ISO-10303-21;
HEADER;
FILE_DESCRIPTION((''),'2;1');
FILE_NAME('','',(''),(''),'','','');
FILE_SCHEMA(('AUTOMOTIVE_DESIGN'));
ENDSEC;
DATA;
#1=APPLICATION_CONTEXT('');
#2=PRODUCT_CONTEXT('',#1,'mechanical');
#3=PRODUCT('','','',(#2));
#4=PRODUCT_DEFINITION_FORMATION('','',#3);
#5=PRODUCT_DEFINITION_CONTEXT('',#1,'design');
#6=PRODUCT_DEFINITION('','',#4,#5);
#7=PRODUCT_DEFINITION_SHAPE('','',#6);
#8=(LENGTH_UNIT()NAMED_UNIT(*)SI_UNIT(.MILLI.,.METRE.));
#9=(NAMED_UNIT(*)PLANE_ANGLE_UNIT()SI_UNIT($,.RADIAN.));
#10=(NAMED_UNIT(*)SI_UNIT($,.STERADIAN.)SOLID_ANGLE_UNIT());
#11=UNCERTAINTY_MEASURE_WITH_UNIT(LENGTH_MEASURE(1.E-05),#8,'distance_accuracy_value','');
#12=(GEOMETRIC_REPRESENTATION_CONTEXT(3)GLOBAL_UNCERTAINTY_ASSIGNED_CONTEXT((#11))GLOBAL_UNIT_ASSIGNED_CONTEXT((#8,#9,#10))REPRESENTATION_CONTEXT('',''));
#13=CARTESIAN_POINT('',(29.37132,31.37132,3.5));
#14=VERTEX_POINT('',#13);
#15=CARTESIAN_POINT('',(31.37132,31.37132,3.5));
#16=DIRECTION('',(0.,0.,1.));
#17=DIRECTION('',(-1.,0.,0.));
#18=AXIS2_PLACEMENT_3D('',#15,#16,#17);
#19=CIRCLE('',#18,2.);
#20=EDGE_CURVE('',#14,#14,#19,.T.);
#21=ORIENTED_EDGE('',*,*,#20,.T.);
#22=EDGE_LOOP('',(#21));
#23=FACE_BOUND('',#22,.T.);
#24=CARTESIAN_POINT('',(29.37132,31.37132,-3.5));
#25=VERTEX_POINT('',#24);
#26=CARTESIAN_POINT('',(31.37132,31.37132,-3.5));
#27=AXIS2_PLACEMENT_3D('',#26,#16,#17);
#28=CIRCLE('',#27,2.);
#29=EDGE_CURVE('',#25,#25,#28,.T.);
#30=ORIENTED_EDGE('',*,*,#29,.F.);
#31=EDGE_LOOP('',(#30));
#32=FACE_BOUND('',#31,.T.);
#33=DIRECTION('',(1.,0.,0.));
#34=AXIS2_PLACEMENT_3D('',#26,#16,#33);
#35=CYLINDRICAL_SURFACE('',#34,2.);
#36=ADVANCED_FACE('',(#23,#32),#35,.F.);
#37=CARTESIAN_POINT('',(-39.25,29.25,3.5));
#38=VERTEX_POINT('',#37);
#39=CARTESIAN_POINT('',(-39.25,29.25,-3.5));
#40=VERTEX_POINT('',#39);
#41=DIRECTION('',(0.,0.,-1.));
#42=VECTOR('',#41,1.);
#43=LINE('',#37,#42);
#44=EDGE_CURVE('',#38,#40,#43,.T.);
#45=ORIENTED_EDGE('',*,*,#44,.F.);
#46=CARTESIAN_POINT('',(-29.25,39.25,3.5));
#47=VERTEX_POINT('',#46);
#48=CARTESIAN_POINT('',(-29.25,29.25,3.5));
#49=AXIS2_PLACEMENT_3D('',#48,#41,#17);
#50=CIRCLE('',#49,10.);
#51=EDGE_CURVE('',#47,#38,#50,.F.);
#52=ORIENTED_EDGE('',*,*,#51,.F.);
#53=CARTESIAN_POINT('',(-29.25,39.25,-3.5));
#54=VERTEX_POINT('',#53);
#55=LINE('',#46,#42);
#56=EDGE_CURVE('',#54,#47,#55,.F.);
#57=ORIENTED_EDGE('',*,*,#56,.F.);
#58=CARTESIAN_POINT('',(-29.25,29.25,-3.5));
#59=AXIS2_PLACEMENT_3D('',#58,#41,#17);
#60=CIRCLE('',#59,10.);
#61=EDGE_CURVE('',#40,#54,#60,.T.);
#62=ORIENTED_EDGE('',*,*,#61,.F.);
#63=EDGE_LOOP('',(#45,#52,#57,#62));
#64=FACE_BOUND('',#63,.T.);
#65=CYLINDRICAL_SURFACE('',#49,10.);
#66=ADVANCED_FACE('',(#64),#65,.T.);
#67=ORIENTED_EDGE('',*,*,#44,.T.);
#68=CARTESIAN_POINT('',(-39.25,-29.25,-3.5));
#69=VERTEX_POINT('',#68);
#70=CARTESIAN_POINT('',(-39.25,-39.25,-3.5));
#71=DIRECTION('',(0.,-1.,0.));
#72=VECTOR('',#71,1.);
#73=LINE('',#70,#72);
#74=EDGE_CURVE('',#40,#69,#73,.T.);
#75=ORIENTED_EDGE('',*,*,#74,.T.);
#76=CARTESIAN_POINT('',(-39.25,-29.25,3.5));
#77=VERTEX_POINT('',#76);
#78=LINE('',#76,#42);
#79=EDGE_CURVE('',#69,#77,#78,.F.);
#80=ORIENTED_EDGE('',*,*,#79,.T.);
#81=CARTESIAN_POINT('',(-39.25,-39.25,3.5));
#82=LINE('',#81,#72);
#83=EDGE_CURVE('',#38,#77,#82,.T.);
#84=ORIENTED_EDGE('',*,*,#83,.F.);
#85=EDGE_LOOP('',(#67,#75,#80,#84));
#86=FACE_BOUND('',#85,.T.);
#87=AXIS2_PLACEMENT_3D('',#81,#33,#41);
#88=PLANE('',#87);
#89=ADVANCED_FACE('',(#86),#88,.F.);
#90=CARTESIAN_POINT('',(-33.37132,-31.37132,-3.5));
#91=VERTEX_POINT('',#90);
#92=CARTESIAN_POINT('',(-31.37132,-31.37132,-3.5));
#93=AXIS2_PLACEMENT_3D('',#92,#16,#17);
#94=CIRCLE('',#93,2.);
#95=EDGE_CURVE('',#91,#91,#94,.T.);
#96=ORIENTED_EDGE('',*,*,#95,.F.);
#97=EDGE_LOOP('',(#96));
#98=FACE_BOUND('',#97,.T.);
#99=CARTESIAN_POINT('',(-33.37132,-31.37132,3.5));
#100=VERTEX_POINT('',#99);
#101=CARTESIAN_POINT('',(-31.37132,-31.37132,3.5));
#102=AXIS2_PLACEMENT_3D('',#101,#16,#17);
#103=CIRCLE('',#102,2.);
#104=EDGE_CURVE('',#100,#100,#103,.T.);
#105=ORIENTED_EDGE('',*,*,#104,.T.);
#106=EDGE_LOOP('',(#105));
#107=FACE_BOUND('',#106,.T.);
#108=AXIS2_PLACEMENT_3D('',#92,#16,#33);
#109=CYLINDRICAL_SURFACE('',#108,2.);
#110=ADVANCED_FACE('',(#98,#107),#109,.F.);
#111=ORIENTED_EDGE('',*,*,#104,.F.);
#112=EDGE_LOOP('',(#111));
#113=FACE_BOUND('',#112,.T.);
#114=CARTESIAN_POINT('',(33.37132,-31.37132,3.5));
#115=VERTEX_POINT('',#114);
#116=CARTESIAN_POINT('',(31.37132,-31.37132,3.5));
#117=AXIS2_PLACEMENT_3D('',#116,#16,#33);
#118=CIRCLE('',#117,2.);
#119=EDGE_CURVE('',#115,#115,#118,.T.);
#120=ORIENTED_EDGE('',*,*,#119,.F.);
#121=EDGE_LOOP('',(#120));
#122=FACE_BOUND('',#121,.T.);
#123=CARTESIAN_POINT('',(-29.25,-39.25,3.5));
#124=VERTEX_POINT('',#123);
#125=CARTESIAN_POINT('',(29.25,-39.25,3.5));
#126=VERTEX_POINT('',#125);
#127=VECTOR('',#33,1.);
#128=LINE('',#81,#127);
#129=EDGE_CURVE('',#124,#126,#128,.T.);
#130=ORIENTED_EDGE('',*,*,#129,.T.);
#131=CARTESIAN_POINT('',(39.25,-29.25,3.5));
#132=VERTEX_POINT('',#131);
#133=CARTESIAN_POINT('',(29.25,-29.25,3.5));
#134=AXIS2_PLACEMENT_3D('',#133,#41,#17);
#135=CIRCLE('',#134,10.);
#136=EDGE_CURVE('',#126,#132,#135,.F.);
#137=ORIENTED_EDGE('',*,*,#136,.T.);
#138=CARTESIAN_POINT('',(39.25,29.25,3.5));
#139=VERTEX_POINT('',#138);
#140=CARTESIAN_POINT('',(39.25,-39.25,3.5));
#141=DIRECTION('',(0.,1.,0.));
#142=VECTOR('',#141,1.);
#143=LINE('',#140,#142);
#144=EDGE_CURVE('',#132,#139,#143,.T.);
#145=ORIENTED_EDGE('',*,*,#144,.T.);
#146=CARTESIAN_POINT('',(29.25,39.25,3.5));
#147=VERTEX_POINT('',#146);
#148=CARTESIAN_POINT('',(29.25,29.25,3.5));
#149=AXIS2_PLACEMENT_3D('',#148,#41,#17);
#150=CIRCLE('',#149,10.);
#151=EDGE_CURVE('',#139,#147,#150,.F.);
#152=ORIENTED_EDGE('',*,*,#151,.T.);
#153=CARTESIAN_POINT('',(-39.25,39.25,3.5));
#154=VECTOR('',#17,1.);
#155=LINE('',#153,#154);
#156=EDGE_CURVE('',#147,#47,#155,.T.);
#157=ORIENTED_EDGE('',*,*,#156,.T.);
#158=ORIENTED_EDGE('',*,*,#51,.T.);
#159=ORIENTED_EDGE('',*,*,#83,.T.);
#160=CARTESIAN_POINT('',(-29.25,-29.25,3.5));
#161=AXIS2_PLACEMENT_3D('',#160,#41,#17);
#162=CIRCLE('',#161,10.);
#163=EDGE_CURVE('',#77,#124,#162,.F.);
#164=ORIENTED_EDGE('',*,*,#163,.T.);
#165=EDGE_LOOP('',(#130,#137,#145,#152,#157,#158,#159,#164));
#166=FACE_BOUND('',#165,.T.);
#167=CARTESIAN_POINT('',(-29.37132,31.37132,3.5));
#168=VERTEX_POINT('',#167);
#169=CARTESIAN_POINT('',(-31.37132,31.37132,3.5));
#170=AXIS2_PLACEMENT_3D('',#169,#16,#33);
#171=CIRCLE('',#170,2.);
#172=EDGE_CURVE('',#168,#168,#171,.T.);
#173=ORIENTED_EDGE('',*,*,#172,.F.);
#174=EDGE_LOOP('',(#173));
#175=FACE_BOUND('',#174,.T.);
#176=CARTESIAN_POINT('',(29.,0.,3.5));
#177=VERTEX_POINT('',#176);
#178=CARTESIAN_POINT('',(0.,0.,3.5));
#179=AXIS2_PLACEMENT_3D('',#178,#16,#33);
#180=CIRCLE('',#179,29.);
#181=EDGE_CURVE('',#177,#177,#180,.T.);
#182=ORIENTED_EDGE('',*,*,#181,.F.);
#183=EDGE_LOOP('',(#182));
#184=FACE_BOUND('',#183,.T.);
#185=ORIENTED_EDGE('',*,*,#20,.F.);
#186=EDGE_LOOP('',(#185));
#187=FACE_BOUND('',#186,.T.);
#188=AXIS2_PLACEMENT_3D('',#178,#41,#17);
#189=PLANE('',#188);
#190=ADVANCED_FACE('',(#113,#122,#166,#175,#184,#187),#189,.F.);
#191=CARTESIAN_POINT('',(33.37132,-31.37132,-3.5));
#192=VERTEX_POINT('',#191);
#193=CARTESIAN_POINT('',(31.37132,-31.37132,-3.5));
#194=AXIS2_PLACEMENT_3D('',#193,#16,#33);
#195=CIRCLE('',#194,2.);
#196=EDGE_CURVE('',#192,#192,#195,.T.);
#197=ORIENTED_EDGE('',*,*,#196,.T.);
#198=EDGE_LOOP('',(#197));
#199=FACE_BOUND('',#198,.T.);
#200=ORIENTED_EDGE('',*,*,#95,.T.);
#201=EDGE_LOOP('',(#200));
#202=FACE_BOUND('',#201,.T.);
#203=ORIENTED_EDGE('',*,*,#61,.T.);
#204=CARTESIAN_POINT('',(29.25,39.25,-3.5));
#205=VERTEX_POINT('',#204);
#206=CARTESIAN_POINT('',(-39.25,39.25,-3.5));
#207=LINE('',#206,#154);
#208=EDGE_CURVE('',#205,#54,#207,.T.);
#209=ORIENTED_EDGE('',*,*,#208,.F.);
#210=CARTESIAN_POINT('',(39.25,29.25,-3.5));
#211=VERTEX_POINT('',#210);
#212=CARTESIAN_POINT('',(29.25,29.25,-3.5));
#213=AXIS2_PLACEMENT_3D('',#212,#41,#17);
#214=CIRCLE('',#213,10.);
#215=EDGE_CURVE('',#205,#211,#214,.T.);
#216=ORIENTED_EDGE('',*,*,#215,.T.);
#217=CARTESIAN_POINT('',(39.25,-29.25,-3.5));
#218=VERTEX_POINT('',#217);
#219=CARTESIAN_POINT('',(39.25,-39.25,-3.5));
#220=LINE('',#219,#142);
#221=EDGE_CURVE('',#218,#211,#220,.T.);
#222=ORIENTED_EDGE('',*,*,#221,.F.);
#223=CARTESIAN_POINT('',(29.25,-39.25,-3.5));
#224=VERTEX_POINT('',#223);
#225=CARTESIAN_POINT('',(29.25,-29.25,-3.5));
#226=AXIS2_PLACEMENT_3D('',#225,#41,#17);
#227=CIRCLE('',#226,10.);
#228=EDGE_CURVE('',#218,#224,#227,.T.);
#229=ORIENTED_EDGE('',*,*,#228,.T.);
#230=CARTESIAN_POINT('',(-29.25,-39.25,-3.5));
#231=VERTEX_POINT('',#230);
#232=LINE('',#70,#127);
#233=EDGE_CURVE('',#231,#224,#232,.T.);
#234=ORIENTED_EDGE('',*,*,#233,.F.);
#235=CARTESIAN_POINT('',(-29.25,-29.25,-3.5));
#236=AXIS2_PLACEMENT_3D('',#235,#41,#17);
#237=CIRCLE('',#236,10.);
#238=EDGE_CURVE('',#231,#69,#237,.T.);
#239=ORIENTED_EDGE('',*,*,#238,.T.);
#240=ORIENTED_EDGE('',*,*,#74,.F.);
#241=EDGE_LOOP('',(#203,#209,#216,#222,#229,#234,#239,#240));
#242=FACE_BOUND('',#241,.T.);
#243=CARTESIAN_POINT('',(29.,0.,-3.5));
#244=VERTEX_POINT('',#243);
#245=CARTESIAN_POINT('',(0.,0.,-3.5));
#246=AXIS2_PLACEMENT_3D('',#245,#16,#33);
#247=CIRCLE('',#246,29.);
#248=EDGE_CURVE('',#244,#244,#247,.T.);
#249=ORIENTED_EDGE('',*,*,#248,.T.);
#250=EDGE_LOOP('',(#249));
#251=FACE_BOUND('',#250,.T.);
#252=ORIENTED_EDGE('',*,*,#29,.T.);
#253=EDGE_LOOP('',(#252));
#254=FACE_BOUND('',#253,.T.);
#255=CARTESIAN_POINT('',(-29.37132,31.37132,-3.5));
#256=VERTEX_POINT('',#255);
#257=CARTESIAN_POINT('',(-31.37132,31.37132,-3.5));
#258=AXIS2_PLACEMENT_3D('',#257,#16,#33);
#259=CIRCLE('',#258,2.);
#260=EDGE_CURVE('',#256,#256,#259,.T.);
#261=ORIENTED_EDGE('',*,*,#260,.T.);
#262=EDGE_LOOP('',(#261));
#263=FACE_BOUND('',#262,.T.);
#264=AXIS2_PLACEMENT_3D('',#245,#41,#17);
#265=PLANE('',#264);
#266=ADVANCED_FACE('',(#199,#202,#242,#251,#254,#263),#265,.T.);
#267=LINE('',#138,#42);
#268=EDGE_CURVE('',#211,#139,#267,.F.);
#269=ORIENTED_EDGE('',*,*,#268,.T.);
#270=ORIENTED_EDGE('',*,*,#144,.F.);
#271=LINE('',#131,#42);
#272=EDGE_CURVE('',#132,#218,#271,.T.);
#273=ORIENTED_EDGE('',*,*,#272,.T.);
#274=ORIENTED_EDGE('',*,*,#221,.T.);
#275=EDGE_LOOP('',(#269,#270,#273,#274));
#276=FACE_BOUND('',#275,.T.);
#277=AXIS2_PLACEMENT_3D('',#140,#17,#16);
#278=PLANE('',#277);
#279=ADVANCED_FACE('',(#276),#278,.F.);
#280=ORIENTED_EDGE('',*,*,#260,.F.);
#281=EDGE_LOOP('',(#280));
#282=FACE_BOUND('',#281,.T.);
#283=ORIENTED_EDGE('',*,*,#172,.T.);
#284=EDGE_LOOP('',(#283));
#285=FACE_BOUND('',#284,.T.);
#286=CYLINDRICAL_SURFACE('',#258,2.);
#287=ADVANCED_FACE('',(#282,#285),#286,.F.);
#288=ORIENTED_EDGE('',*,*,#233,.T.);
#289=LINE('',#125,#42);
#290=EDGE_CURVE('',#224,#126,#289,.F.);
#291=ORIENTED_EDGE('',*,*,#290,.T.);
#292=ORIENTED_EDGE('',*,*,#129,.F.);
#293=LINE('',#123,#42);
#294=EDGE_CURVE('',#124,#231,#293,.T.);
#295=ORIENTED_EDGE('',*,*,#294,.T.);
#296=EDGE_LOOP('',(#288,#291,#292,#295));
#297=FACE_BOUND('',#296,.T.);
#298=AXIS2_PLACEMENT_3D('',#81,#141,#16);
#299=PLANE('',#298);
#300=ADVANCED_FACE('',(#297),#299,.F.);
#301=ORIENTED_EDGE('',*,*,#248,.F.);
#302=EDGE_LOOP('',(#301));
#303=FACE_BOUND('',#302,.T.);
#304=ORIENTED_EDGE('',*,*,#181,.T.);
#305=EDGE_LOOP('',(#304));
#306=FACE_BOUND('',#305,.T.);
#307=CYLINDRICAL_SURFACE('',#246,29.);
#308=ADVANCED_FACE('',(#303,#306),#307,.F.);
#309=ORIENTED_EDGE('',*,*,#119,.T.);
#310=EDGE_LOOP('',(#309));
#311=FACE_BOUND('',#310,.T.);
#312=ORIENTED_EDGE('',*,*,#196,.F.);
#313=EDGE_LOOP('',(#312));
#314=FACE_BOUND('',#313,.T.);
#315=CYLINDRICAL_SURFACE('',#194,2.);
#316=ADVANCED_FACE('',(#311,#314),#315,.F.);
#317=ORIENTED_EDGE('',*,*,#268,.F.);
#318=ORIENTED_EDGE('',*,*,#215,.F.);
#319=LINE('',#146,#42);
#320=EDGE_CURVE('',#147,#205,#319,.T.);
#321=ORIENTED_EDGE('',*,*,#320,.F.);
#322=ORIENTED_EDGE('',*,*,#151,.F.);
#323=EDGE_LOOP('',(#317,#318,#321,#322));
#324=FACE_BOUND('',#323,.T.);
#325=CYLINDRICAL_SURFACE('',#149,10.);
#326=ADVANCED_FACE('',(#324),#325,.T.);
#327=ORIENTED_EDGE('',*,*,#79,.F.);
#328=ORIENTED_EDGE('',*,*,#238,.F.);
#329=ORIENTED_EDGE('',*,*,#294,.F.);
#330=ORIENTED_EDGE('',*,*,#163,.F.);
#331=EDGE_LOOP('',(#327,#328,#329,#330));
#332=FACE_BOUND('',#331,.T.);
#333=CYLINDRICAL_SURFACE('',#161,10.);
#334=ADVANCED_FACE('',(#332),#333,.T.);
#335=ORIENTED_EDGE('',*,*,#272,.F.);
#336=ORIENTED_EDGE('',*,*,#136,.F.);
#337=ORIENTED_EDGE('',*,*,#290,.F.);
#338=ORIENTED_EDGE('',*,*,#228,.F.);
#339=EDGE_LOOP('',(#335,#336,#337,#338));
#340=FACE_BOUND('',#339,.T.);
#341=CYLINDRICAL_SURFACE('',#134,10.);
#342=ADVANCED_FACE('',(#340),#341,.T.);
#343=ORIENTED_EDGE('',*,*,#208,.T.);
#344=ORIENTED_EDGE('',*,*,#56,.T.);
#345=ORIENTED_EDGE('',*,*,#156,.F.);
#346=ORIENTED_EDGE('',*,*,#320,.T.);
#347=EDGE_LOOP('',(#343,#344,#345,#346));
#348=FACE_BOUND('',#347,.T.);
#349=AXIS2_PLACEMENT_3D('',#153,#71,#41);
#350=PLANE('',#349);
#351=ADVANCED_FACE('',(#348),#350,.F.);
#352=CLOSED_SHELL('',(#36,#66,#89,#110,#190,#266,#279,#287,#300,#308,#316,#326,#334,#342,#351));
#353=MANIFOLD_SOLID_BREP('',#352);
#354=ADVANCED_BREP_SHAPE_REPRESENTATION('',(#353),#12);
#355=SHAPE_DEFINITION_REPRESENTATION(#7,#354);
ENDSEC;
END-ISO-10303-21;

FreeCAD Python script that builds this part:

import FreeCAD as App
import Part
import Sketcher
from FreeCAD import Vector


def edges_at(feature, points):
    """Names of the edges that pass closest to the given points."""
    edges = feature.Shape.Edges
    near = lambda p: min(range(len(edges)), key=lambda i: edges[i].distToShape(Part.Vertex(*p))[0])
    return sorted({f"Edge{near(p) + 1}" for p in points})

doc = App.newDocument("Part")
body = doc.addObject("PartDesign::Body", "Body")

# Sketch on XY plane
sketch1 = body.newObject("Sketcher::SketchObject", "Sketch")
sketch1.AttachmentSupport = (doc.getObject("XY_Plane"), [""])
sketch1.MapMode = "FlatFace"
sketch1.addGeometry(Part.LineSegment(Vector(-39, 39, 0), Vector(-39, -39, 0)), False)
sketch1.addGeometry(Part.LineSegment(Vector(-39, -39, 0), Vector(39, -39, 0)), False)
sketch1.addGeometry(Part.LineSegment(Vector(39, -39, 0), Vector(39, 39, 0)), False)
sketch1.addGeometry(Part.LineSegment(Vector(39, 39, 0), Vector(-39, 39, 0)), False)
sketch1.addConstraint(Sketcher.Constraint("Coincident", 0, 2, 1, 1))
sketch1.addConstraint(Sketcher.Constraint("Coincident", 1, 2, 2, 1))
sketch1.addConstraint(Sketcher.Constraint("Coincident", 2, 2, 3, 1))
sketch1.addConstraint(Sketcher.Constraint("Coincident", 3, 2, 0, 1))
sketch1.addConstraint(Sketcher.Constraint("Vertical", 0))
sketch1.addConstraint(Sketcher.Constraint("Horizontal", 1))
sketch1.addConstraint(Sketcher.Constraint("Vertical", 2))
sketch1.addConstraint(Sketcher.Constraint("Horizontal", 3))
sketch1.addConstraint(Sketcher.Constraint("Symmetric", 0, 2, 2, 2, -1, 1))
sketch1.addConstraint(Sketcher.Constraint("Equal", 3, 0))
sketch1.addConstraint(Sketcher.Constraint("DistanceX", 1, 1, 1, 2, 78.5))
pad1 = body.newObject("PartDesign::Pad", "Pad")
pad1.Profile = sketch1
pad1.Length = 7
pad1.Midplane = True
doc.recompute()

fillet = body.newObject("PartDesign::Fillet", "Fillet")
fillet.Base = (pad1, edges_at(pad1, [
    (39.25, -39.25, 0),
    (-39.25, -39.25, 0),
    (-39.25, 39.25, 0),
    (39.25, 39.25, 0),
]))
fillet.Radius = 10

# Sketch on XY plane
sketch2 = body.newObject("Sketcher::SketchObject", "Sketch001")
sketch2.AttachmentSupport = (doc.getObject("XY_Plane"), [""])
sketch2.MapMode = "FlatFace"
sketch2.AttachmentOffset = App.Placement(Vector(0, 0, 3.5), App.Rotation())
sketch2.addGeometry(Part.Circle(Vector(-31.4, 31.4, 0), Vector(0, 0, 1), 2), False)
sketch2.addGeometry(Part.Circle(Vector(-31.4, -31.4, 0), Vector(0, 0, 1), 2), False)
sketch2.addGeometry(Part.Circle(Vector(31.4, 31.4, 0), Vector(0, 0, 1), 2), False)
sketch2.addGeometry(Part.Circle(Vector(31.4, -31.4, 0), Vector(0, 0, 1), 2), False)
sketch2.addConstraint(Sketcher.Constraint("Equal", 0, 1))
sketch2.addConstraint(Sketcher.Constraint("Equal", 1, 2))
sketch2.addConstraint(Sketcher.Constraint("Equal", 2, 3))
sketch2.addConstraint(Sketcher.Constraint("Symmetric", 1, 3, 2, 3, -1, 1))
sketch2.addConstraint(Sketcher.Constraint("Symmetric", 0, 3, 3, 3, -1, 1))
sketch2.addConstraint(Sketcher.Constraint("Symmetric", 0, 3, 2, 3, -2))
sketch2.addConstraint(Sketcher.Constraint("Diameter", 0, 4.0))
sketch2.addConstraint(Sketcher.Constraint("DistanceX", 0, 3, -1, 1, 31.37132))
sketch2.addConstraint(Sketcher.Constraint("DistanceY", -1, 1, 0, 3, 31.37132))
pocket1 = body.newObject("PartDesign::Pocket", "Pocket")
pocket1.Profile = sketch2
pocket1.Type = "ThroughAll"

# Sketch on XY plane
sketch3 = body.newObject("Sketcher::SketchObject", "Sketch002")
sketch3.AttachmentSupport = (doc.getObject("XY_Plane"), [""])
sketch3.MapMode = "FlatFace"
sketch3.AttachmentOffset = App.Placement(Vector(0, 0, 3.5), App.Rotation())
sketch3.addGeometry(Part.Circle(Vector(0, 0, 0), Vector(0, 0, 1), 29), False)
sketch3.addConstraint(Sketcher.Constraint("Coincident", 0, 3, -1, 1))
sketch3.addConstraint(Sketcher.Constraint("Diameter", 0, 58.0))
pocket2 = body.newObject("PartDesign::Pocket", "Pocket001")
pocket2.Profile = sketch3
pocket2.Type = "ThroughAll"

doc.recompute()
